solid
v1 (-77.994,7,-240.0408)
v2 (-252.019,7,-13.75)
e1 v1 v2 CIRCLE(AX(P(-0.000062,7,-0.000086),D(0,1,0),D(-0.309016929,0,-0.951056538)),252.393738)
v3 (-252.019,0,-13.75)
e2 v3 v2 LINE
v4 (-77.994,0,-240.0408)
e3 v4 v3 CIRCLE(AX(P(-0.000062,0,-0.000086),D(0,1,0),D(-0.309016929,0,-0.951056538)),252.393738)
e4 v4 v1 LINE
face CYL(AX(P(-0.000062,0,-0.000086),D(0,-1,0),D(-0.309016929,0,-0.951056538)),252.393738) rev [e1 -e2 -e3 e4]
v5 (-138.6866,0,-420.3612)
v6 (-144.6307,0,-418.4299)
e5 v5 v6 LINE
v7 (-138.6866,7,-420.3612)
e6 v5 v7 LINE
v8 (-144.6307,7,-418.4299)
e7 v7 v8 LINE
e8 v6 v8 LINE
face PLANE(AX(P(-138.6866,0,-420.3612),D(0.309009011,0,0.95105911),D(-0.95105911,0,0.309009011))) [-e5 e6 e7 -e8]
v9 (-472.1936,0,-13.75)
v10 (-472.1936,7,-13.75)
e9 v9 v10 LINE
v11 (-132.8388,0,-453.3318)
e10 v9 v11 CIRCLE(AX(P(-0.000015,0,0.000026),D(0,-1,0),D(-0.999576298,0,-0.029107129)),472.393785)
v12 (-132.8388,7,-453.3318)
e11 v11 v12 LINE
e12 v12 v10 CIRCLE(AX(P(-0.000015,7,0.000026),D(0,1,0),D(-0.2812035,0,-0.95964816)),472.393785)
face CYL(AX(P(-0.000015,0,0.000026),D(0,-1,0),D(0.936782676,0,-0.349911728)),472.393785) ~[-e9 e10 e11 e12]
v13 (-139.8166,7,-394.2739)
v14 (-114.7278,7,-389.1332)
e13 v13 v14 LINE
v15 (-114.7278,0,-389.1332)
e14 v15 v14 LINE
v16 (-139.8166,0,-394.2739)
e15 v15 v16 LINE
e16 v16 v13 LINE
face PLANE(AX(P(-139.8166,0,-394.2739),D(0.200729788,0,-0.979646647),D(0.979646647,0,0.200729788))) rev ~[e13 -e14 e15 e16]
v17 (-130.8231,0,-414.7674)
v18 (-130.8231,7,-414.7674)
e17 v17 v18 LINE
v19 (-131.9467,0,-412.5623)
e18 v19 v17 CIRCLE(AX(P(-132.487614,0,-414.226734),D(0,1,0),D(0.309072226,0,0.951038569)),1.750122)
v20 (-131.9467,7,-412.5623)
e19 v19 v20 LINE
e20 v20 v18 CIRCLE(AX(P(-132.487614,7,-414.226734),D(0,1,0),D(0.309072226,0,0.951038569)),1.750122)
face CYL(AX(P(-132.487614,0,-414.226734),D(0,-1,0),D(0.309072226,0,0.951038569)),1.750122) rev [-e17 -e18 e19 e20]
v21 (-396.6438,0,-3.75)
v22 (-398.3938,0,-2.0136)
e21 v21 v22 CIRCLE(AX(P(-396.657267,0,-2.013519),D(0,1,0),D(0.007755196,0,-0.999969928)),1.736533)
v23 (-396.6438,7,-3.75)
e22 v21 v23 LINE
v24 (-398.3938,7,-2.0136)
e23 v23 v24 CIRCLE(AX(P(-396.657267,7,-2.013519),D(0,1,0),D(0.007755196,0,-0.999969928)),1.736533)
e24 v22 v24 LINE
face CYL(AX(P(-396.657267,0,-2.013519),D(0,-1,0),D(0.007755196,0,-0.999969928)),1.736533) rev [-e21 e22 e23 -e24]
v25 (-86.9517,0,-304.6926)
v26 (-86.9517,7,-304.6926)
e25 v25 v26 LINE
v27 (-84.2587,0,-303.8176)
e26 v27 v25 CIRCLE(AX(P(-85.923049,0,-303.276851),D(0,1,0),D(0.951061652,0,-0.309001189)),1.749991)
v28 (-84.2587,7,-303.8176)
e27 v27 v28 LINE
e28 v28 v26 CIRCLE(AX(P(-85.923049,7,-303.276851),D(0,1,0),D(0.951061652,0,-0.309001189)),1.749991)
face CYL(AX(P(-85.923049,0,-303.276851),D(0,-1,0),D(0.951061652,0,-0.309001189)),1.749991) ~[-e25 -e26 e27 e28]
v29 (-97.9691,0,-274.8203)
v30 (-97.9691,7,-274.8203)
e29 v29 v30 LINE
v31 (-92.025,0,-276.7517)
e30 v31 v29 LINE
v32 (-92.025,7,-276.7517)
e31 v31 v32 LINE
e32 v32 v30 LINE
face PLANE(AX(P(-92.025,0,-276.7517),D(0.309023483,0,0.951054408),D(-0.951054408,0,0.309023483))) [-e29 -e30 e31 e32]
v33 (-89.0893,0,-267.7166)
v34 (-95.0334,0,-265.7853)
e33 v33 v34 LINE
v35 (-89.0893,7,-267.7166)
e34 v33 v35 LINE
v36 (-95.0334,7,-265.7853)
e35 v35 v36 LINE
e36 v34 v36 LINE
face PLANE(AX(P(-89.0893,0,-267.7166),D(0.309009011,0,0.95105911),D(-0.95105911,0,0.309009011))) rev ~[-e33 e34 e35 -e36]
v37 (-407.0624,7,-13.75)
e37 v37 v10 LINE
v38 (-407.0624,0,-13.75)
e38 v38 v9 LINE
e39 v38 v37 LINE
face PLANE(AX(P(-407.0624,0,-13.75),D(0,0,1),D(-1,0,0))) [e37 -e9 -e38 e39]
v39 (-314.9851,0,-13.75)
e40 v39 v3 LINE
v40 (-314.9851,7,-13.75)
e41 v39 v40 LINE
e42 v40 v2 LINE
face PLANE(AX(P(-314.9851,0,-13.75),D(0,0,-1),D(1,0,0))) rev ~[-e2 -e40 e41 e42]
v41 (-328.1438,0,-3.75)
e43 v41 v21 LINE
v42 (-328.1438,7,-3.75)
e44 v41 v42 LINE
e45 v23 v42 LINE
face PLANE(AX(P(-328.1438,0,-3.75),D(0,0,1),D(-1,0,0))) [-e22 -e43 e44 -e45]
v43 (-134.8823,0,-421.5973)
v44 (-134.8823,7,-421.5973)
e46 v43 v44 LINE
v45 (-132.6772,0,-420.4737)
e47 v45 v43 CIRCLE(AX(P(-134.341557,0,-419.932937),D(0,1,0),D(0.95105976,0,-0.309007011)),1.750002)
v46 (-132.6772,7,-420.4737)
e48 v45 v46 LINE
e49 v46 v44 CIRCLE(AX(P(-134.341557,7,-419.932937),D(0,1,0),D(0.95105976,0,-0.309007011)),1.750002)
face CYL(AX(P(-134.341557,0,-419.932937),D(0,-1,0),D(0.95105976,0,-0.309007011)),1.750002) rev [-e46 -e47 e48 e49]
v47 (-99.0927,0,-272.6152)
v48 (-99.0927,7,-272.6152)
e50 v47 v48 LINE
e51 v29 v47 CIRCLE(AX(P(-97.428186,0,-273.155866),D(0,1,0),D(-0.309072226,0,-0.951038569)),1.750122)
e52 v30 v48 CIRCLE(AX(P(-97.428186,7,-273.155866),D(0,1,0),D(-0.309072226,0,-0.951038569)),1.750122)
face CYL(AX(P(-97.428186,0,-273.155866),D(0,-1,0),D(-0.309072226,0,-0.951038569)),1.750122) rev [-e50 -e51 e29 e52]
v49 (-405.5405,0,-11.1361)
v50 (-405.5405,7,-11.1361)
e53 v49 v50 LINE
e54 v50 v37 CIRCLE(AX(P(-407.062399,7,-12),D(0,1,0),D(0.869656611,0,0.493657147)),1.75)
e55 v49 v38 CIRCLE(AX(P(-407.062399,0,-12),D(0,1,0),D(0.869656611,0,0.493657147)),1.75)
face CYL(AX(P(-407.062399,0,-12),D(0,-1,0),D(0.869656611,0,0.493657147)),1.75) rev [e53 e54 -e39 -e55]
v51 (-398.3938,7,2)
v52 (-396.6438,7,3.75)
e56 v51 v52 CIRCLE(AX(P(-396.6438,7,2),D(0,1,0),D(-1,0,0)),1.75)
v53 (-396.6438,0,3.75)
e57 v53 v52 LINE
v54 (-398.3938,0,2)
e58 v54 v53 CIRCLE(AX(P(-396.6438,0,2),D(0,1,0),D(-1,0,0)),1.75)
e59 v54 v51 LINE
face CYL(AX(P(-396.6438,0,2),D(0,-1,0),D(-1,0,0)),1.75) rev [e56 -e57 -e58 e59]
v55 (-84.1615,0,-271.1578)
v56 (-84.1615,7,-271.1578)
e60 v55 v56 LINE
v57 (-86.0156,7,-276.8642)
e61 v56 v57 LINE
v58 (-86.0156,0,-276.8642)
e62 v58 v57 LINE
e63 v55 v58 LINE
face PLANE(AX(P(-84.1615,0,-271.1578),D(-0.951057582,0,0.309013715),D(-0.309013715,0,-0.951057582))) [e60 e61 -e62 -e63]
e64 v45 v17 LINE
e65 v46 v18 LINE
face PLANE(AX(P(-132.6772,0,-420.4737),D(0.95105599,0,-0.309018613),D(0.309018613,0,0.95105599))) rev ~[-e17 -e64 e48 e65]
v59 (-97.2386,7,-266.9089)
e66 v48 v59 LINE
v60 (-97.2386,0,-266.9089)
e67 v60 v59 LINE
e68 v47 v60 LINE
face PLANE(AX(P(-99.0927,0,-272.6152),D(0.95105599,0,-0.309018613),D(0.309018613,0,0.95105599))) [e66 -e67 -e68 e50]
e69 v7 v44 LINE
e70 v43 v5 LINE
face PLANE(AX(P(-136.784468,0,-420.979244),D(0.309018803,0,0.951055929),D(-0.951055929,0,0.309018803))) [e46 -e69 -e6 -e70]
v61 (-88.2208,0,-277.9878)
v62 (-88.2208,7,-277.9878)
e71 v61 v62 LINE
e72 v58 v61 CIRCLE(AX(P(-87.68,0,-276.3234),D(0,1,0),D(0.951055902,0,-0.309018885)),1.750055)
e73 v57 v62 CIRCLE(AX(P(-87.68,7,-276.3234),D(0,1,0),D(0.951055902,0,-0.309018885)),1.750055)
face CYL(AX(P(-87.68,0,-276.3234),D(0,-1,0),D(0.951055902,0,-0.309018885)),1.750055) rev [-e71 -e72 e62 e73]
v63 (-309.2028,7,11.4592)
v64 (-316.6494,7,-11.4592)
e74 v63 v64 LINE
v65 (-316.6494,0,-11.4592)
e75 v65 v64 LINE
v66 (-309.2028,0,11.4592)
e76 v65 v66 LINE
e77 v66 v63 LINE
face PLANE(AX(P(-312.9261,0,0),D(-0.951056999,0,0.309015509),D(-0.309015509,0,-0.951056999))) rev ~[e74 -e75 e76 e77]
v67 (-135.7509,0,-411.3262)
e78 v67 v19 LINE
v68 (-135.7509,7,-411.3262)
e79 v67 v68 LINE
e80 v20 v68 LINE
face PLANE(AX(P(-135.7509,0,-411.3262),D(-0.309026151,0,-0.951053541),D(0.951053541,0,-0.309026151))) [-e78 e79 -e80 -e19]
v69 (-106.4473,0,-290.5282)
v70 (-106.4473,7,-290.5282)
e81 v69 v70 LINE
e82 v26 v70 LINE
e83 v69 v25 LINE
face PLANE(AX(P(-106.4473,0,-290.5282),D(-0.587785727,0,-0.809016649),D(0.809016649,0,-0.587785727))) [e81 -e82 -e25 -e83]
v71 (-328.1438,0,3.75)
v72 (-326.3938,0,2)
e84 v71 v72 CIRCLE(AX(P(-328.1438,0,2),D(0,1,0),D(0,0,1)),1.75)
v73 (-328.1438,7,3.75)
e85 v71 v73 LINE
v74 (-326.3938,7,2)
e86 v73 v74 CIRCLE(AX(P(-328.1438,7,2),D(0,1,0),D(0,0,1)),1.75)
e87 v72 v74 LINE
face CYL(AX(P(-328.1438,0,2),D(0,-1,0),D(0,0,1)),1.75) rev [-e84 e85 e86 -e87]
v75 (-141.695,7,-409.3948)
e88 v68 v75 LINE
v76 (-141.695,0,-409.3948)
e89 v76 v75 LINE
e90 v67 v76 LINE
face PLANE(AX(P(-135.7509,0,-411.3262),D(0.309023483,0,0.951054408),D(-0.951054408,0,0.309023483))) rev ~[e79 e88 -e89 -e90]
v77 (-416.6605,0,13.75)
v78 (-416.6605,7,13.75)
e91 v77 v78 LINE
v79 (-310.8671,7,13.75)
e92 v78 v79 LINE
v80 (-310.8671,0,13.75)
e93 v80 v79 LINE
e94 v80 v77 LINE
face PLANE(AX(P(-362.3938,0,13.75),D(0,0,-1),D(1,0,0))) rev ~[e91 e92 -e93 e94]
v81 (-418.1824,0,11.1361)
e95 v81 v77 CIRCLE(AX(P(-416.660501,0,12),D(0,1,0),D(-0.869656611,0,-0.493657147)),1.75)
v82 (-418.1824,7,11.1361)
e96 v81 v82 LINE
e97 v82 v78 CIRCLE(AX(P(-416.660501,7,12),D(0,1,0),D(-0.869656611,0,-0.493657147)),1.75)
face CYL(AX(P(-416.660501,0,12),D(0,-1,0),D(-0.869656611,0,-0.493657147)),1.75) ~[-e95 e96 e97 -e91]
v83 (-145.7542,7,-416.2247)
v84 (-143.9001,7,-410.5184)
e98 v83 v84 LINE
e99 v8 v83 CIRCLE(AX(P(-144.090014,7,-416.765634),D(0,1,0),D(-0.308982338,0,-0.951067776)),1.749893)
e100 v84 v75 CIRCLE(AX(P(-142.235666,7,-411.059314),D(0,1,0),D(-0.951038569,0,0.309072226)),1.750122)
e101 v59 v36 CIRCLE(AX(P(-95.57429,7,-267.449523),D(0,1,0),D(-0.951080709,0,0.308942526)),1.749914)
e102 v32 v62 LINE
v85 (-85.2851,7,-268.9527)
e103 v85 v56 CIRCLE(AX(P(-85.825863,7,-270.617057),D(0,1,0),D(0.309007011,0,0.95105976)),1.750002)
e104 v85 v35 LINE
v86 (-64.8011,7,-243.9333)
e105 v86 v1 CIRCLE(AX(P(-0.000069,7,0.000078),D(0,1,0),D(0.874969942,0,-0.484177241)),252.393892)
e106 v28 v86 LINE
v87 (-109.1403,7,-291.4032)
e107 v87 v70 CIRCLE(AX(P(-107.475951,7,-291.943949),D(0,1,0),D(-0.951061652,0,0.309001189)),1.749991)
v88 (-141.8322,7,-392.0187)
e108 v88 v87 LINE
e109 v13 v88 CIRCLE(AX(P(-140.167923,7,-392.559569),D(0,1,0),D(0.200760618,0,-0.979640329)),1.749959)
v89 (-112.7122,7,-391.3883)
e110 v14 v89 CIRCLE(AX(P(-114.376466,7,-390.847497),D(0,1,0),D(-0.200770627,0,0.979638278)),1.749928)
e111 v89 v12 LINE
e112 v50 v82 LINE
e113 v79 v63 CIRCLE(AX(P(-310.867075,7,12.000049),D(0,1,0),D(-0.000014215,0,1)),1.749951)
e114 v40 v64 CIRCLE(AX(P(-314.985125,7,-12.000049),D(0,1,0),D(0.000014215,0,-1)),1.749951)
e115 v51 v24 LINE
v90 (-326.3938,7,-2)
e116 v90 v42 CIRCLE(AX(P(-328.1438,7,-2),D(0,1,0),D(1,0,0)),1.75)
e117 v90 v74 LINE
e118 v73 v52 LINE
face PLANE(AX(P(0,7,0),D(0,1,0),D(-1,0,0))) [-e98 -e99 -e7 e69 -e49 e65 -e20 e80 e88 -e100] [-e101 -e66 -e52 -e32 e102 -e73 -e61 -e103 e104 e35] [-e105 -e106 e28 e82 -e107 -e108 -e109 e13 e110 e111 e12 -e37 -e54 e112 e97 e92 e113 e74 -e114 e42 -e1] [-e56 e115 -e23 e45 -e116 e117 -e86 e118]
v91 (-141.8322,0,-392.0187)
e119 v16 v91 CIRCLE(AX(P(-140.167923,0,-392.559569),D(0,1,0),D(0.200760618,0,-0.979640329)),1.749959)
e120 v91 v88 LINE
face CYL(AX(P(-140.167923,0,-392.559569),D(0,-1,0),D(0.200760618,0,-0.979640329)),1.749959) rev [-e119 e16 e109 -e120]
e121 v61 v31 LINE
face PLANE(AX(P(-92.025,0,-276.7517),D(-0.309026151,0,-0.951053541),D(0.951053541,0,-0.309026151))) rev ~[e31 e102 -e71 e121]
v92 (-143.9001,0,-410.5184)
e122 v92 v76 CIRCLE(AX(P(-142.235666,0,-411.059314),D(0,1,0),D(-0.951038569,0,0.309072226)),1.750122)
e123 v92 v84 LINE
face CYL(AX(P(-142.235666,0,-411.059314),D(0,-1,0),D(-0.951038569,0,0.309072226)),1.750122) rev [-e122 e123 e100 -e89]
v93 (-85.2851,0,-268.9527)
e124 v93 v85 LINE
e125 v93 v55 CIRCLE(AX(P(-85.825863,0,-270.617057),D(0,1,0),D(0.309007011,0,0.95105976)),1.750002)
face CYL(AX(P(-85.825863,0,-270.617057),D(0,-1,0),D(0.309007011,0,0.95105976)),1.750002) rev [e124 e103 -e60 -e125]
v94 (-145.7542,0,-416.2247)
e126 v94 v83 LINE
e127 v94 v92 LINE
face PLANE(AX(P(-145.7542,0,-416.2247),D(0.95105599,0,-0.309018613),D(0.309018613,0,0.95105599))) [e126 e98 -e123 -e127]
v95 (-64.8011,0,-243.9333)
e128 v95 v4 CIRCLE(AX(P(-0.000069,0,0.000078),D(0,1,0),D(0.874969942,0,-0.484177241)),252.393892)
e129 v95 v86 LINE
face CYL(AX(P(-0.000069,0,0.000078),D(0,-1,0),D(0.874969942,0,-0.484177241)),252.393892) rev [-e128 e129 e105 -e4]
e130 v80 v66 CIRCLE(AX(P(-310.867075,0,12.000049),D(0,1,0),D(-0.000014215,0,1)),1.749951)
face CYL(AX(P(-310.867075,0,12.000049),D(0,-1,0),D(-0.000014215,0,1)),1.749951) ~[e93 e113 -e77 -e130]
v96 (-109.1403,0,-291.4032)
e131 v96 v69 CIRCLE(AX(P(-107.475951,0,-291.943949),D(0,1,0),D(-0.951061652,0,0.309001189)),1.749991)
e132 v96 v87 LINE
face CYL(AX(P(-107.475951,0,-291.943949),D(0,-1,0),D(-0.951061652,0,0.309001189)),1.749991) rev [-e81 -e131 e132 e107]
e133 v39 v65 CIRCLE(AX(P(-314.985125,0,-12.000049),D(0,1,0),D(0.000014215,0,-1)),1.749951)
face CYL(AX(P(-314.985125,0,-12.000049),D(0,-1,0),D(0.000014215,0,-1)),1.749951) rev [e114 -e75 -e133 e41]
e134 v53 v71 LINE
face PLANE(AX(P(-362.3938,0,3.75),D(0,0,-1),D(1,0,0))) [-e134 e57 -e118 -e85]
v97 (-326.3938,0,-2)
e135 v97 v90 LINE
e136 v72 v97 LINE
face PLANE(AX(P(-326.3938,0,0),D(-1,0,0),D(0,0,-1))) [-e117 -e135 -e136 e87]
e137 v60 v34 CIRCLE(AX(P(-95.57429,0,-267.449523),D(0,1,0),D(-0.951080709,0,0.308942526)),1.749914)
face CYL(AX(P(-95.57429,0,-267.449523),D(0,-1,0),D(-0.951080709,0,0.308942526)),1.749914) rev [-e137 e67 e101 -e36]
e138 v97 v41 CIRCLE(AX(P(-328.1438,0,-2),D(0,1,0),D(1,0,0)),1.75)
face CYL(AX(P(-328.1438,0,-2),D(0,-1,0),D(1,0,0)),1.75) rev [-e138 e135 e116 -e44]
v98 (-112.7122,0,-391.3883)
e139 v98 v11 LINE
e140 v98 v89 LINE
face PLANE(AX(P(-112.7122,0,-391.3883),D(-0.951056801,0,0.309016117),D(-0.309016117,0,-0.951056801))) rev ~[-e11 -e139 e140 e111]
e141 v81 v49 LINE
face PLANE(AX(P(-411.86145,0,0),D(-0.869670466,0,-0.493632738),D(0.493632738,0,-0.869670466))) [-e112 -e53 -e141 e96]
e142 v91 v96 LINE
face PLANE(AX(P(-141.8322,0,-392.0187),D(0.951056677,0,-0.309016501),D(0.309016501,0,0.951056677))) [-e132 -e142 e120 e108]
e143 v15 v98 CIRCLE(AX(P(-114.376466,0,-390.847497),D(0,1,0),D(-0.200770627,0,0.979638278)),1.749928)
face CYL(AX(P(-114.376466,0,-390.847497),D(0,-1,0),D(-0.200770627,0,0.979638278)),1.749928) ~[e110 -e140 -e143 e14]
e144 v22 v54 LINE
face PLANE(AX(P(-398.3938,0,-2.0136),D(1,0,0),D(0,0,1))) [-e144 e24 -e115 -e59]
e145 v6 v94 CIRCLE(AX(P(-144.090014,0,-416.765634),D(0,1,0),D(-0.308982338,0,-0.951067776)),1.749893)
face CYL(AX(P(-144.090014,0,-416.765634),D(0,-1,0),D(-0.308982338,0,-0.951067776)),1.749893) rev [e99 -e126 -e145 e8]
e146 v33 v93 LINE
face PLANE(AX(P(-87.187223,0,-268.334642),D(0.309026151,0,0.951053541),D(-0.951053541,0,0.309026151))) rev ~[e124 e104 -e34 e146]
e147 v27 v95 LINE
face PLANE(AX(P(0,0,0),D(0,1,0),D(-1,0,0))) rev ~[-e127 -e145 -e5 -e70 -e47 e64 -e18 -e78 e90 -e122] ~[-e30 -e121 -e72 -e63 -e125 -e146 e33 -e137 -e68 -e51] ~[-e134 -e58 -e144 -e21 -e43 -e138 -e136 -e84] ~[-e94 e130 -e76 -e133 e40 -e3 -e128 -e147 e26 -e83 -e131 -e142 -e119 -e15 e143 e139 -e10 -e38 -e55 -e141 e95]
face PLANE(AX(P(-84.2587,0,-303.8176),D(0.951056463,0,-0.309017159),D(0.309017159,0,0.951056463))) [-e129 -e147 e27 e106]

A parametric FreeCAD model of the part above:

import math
import FreeCAD as App
import Part
import Sketcher

V = App.Vector
Q = App.Units.Quantity

doc = App.newDocument("Part")
body = doc.addObject("PartDesign::Body", "Body")

# Sketch on XZ plane
sketch1 = body.newObject("Sketcher::SketchObject", "Sketch")
sketch1.AttachmentSupport = (doc.getObject("XZ_Plane"), [""])
sketch1.MapMode = "FlatFace"
sketch1.addGeometry([
    Part.ArcOfCircle(Part.Circle(V(0, 0, 0), V(0, 0, 1), 252.4), math.radians(-177), math.radians(-108)),  # 0
    Part.ArcOfCircle(Part.Circle(V(0, 0, 0), V(0, 0, 1), 252.4), math.radians(-108), math.radians(-104.88)),  # 1
    Part.LineSegment(V(-64.8, -243.9, 0), V(-84.3, -303.8, 0)),  # 2
    Part.ArcOfCircle(Part.Circle(V(-85.9, -303.3, 0), V(0, 0, 1), 1.8), math.radians(-126), math.radians(-18)),  # 3
    Part.LineSegment(V(-87, -304.7, 0), V(-106.4, -290.5, 0)),  # 4
    Part.ArcOfCircle(Part.Circle(V(-107.5, -291.9, 0), V(0, 0, 1), 1.8), math.radians(54), math.radians(162)),  # 5
    Part.LineSegment(V(-109.1, -291.4, 0), V(-141.8, -392, 0)),  # 6
    Part.ArcOfCircle(Part.Circle(V(-140.2, -392.6, 0), V(0, 0, 1), 1.8), math.radians(162), math.radians(282)),  # 7
    Part.LineSegment(V(-139.8, -394.3, 0), V(-114.7, -389.1, 0)),  # 8
    Part.ArcOfCircle(Part.Circle(V(-114.4, -390.8, 0), V(0, 0, 1), 1.8), math.radians(-18), math.radians(102)),  # 9
    Part.LineSegment(V(-112.7, -391.4, 0), V(-132.8, -453.3, 0)),  # 10
    Part.ArcOfCircle(Part.Circle(V(0, 0, 0), V(0, 0, 1), 472.4), math.radians(-178), math.radians(-106)),  # 11
    Part.LineSegment(V(-472.2, -13.8, 0), V(-407.1, -13.8, 0)),  # 12
    Part.ArcOfCircle(Part.Circle(V(-407.1, -12, 0), V(0, 0, 1), 1.8), math.radians(-90), math.radians(30)),  # 13
    Part.LineSegment(V(-405.5, -11.1, 0), V(-418.2, 11.1, 0)),  # 14
    Part.ArcOfCircle(Part.Circle(V(-416.7, 12, 0), V(0, 0, 1), 1.8), math.radians(90), math.radians(210)),  # 15
    Part.LineSegment(V(-416.7, 13.8, 0), V(-310.9, 13.8, 0)),  # 16
    Part.ArcOfCircle(Part.Circle(V(-310.9, 12, 0), V(0, 0, 1), 1.8), math.radians(-18), math.radians(90)),  # 17
    Part.LineSegment(V(-309.2, 11.5, 0), V(-316.6, -11.5, 0)),  # 18
    Part.ArcOfCircle(Part.Circle(V(-315, -12, 0), V(0, 0, 1), 1.8), math.radians(162), math.radians(270)),  # 19
    Part.LineSegment(V(-315, -13.8, 0), V(-252, -13.8, 0)),  # 20
    Part.LineSegment(V(-326.4, -2, 0), V(-326.4, 2, 0)),  # 21
    Part.ArcOfCircle(Part.Circle(V(-328.1, 2, 0), V(0, 0, 1), 1.8), math.radians(0), math.radians(90)),  # 22
    Part.LineSegment(V(-328.1, 3.8, 0), V(-396.6, 3.8, 0)),  # 23
    Part.ArcOfCircle(Part.Circle(V(-396.6, 2, 0), V(0, 0, 1), 1.8), math.radians(90), math.radians(180)),  # 24
    Part.LineSegment(V(-398.4, 2, 0), V(-398.4, -2, 0)),  # 25
    Part.ArcOfCircle(Part.Circle(V(-396.7, -2, 0), V(0, 0, 1), 1.7), math.radians(180), math.radians(270)),  # 26
    Part.LineSegment(V(-396.6, -3.8, 0), V(-328.1, -3.8, 0)),  # 27
    Part.ArcOfCircle(Part.Circle(V(-328.1, -2, 0), V(0, 0, 1), 1.8), math.radians(-90), math.radians(0)),  # 28
    Part.LineSegment(V(-138.7, -420.4, 0), V(-134.9, -421.6, 0)),  # 29
    Part.ArcOfCircle(Part.Circle(V(-134.3, -419.9, 0), V(0, 0, 1), 1.8), math.radians(-108), math.radians(-18)),  # 30
    Part.LineSegment(V(-132.7, -420.5, 0), V(-130.8, -414.8, 0)),  # 31
    Part.ArcOfCircle(Part.Circle(V(-132.5, -414.2, 0), V(0, 0, 1), 1.7), math.radians(-18), math.radians(72)),  # 32
    Part.LineSegment(V(-131.9, -412.6, 0), V(-135.8, -411.3, 0)),  # 33
    Part.LineSegment(V(-135.8, -411.3, 0), V(-141.7, -409.4, 0)),  # 34
    Part.ArcOfCircle(Part.Circle(V(-142.2, -411.1, 0), V(0, 0, 1), 1.7), math.radians(72), math.radians(162)),  # 35
    Part.LineSegment(V(-143.9, -410.5, 0), V(-145.8, -416.2, 0)),  # 36
    Part.ArcOfCircle(Part.Circle(V(-144.1, -416.8, 0), V(0, 0, 1), 1.8), math.radians(162), math.radians(252)),  # 37
    Part.LineSegment(V(-144.6, -418.4, 0), V(-138.7, -420.4, 0)),  # 38
    Part.LineSegment(V(-92, -276.8, 0), V(-88.2, -278, 0)),  # 39
    Part.ArcOfCircle(Part.Circle(V(-87.7, -276.3, 0), V(0, 0, 1), 1.8), math.radians(-108), math.radians(-18)),  # 40
    Part.LineSegment(V(-86, -276.9, 0), V(-84.2, -271.2, 0)),  # 41
    Part.ArcOfCircle(Part.Circle(V(-85.8, -270.6, 0), V(0, 0, 1), 1.8), math.radians(-18), math.radians(72)),  # 42
    Part.LineSegment(V(-85.3, -269, 0), V(-89.1, -267.7, 0)),  # 43
    Part.LineSegment(V(-89.1, -267.7, 0), V(-95, -265.8, 0)),  # 44
    Part.ArcOfCircle(Part.Circle(V(-95.6, -267.4, 0), V(0, 0, 1), 1.8), math.radians(72), math.radians(162)),  # 45
    Part.LineSegment(V(-97.2, -266.9, 0), V(-99.1, -272.6, 0)),  # 46
    Part.ArcOfCircle(Part.Circle(V(-97.4, -273.2, 0), V(0, 0, 1), 1.7), math.radians(162), math.radians(252)),  # 47
    Part.LineSegment(V(-98, -274.8, 0), V(-92, -276.8, 0)),  # 48
], False)
sketch1.addConstraint([
    Sketcher.Constraint("Tangent", 0, 2, 1, 1),
    Sketcher.Constraint("Coincident", 1, 2, 2, 1),
    Sketcher.Constraint("Tangent", 2, 2, 3, 2),
    Sketcher.Constraint("Tangent", 3, 1, 4, 1),
    Sketcher.Constraint("Tangent", 4, 2, 5, 1),
    Sketcher.Constraint("Tangent", 5, 2, 6, 1),
    Sketcher.Constraint("Tangent", 6, 2, 7, 1),
    Sketcher.Constraint("Tangent", 7, 2, 8, 1),
    Sketcher.Constraint("Tangent", 8, 2, 9, 2),
    Sketcher.Constraint("Tangent", 9, 1, 10, 1),
    Sketcher.Constraint("Coincident", 10, 2, 11, 2),
    Sketcher.Constraint("Coincident", 11, 1, 12, 1),
    Sketcher.Constraint("Tangent", 12, 2, 13, 1),
    Sketcher.Constraint("Tangent", 13, 2, 14, 1),
    Sketcher.Constraint("Tangent", 14, 2, 15, 2),
    Sketcher.Constraint("Tangent", 15, 1, 16, 1),
    Sketcher.Constraint("Tangent", 16, 2, 17, 2),
    Sketcher.Constraint("Tangent", 17, 1, 18, 1),
    Sketcher.Constraint("Tangent", 18, 2, 19, 1),
    Sketcher.Constraint("Tangent", 19, 2, 20, 1),
    Sketcher.Constraint("Coincident", 20, 2, 0, 1),
    Sketcher.Constraint("Tangent", 21, 2, 22, 1),
    Sketcher.Constraint("Tangent", 22, 2, 23, 1),
    Sketcher.Constraint("Tangent", 23, 2, 24, 1),
    Sketcher.Constraint("Tangent", 24, 2, 25, 1),
    Sketcher.Constraint("Tangent", 25, 2, 26, 1),
    Sketcher.Constraint("Coincident", 26, 2, 27, 1),
    Sketcher.Constraint("Tangent", 27, 2, 28, 1),
    Sketcher.Constraint("Tangent", 28, 2, 21, 1),
    Sketcher.Constraint("Tangent", 29, 2, 30, 1),
    Sketcher.Constraint("Tangent", 30, 2, 31, 1),
    Sketcher.Constraint("Tangent", 31, 2, 32, 1),
    Sketcher.Constraint("Tangent", 32, 2, 33, 1),
    Sketcher.Constraint("Coincident", 33, 2, 34, 1),
    Sketcher.Constraint("Tangent", 34, 2, 35, 1),
    Sketcher.Constraint("Tangent", 35, 2, 36, 1),
    Sketcher.Constraint("Tangent", 36, 2, 37, 1),
    Sketcher.Constraint("Tangent", 37, 2, 38, 1),
    Sketcher.Constraint("Coincident", 38, 2, 29, 1),
    Sketcher.Constraint("Tangent", 39, 2, 40, 1),
    Sketcher.Constraint("Tangent", 40, 2, 41, 1),
    Sketcher.Constraint("Tangent", 41, 2, 42, 1),
    Sketcher.Constraint("Tangent", 42, 2, 43, 1),
    Sketcher.Constraint("Coincident", 43, 2, 44, 1),
    Sketcher.Constraint("Tangent", 44, 2, 45, 1),
    Sketcher.Constraint("Tangent", 45, 2, 46, 1),
    Sketcher.Constraint("Tangent", 46, 2, 47, 1),
    Sketcher.Constraint("Tangent", 47, 2, 48, 1),
    Sketcher.Constraint("Coincident", 48, 2, 39, 1),
    Sketcher.Constraint("Horizontal", 12),
    Sketcher.Constraint("Horizontal", 16),
    Sketcher.Constraint("Horizontal", 20),
    Sketcher.Constraint("Vertical", 21),
    Sketcher.Constraint("Horizontal", 23),
    Sketcher.Constraint("Vertical", 25),
    Sketcher.Constraint("Horizontal", 27),
    Sketcher.Constraint("Coincident", 0, 3, -1, 1),
    Sketcher.Constraint("Coincident", 11, 3, -1, 1),
    Sketcher.Constraint("Equal", 0, 1),
    Sketcher.Constraint("Equal", 3, 5),
    Sketcher.Constraint("Equal", 5, 7),
    Sketcher.Constraint("Equal", 7, 9),
    Sketcher.Constraint("Equal", 9, 13),
    Sketcher.Constraint("Equal", 13, 15),
    Sketcher.Constraint("Equal", 15, 17),
    Sketcher.Constraint("Equal", 17, 19),
    Sketcher.Constraint("Equal", 19, 22),
    Sketcher.Constraint("Equal", 22, 24),
    Sketcher.Constraint("Equal", 24, 28),
    Sketcher.Constraint("Equal", 28, 30),
    Sketcher.Constraint("Equal", 30, 32),
    Sketcher.Constraint("Equal", 32, 35),
    Sketcher.Constraint("Equal", 35, 37),
    Sketcher.Constraint("Equal", 37, 40),
    Sketcher.Constraint("Equal", 40, 42),
    Sketcher.Constraint("Equal", 42, 45),
    Sketcher.Constraint("Equal", 45, 47),
    Sketcher.Constraint("Symmetric", 23, 2, 26, 2, -1),
    Sketcher.Constraint("Parallel", 2, 6),
    Sketcher.Constraint("Parallel", 6, 10),
    Sketcher.Constraint("Parallel", 10, 18),
    Sketcher.Constraint("Perpendicular", 18, 29),
    Sketcher.Constraint("Perpendicular", 29, 31),
    Sketcher.Constraint("Perpendicular", 31, 33),
    Sketcher.Constraint("Parallel", 33, 34),
    Sketcher.Constraint("Perpendicular", 34, 36),
    Sketcher.Constraint("Perpendicular", 36, 38),
    Sketcher.Constraint("Parallel", 38, 39),
    Sketcher.Constraint("Perpendicular", 39, 41),
    Sketcher.Constraint("Perpendicular", 41, 43),
    Sketcher.Constraint("Parallel", 43, 44),
    Sketcher.Constraint("Perpendicular", 44, 46),
    Sketcher.Constraint("Perpendicular", 46, 48),
    Sketcher.Constraint("Horizontal", 13, 3, 19, 3),
    Sketcher.Constraint("Equal", 8, 14),
    Sketcher.Constraint("Equal", 4, 18),
    Sketcher.Constraint("Equal", 29, 33),
    Sketcher.Constraint("Equal", 33, 39),
    Sketcher.Constraint("Equal", 36, 41),
    Sketcher.Constraint("Equal", 39, 43),
    Sketcher.Constraint("Equal", 38, 44),
    Sketcher.Constraint("Angle", 4, Q("144 deg")),
    Sketcher.Constraint("Radius", 3, Q("1.75 mm")),
    Sketcher.Constraint("DistanceX", 23, 2, 23, 1, Q("68.5 mm")),
    Sketcher.Constraint("DistanceY", 21, 1, 21, 2, Q("4 mm")),
    Sketcher.Constraint("Angle", 2, Q("-108 deg")),
    Sketcher.Constraint("Distance", 29, Q("4 mm")),
    Sketcher.Constraint("Distance", 31, Q("6 mm")),
    Sketcher.Constraint("DistanceY", 13, 3, -1, 1, Q("12 mm")),
    Sketcher.Constraint("DistanceY", -1, 1, 15, 3, Q("12 mm")),
    Sketcher.Constraint("DistanceX", 35, 2, -1, 1, Q("143.9 mm")),
    Sketcher.Constraint("Angle", 8, Q("11.5796 deg")),
    Sketcher.Constraint("Angle", 14, Q("119.5796 deg")),
    Sketcher.Constraint("Radius", 0, Q("252.3938 mm")),
    Sketcher.Constraint("Radius", 11, Q("472.3938 mm")),
    Sketcher.Constraint("Radius", 26, Q("1.7365 mm")),
    Sketcher.Constraint("Distance", 34, Q("6.25 mm")),
    Sketcher.Constraint("DistanceX", 20, 1, 20, 2, Q("62.966 mm")),
    Sketcher.Constraint("DistanceX", 40, 3, -1, 1, Q("87.68 mm")),
    Sketcher.Constraint("DistanceY", 37, 2, -1, 1, Q("418.43 mm")),
    Sketcher.Constraint("Distance", 2, Q("62.966 mm")),
    Sketcher.Constraint("DistanceX", 12, 1, 12, 2, Q("65.1312 mm")),
    Sketcher.Constraint("DistanceX", 3, 3, -1, 1, Q("85.923 mm")),
    Sketcher.Constraint("DistanceX", 7, 3, -1, 1, Q("140.168 mm")),
    Sketcher.Constraint("DistanceY", 42, 3, -1, 1, Q("270.617 mm")),
    Sketcher.Constraint("DistanceX", 0, 2, -1, 1, Q("77.994 mm")),
    Sketcher.Constraint("DistanceX", 22, 3, -1, 1, Q("328.1438 mm")),
])
pad1 = body.newObject("PartDesign::Pad", "Pad")
pad1.Profile = sketch1
pad1.Length = 7
pad1.Reversed = True

doc.recompute()
